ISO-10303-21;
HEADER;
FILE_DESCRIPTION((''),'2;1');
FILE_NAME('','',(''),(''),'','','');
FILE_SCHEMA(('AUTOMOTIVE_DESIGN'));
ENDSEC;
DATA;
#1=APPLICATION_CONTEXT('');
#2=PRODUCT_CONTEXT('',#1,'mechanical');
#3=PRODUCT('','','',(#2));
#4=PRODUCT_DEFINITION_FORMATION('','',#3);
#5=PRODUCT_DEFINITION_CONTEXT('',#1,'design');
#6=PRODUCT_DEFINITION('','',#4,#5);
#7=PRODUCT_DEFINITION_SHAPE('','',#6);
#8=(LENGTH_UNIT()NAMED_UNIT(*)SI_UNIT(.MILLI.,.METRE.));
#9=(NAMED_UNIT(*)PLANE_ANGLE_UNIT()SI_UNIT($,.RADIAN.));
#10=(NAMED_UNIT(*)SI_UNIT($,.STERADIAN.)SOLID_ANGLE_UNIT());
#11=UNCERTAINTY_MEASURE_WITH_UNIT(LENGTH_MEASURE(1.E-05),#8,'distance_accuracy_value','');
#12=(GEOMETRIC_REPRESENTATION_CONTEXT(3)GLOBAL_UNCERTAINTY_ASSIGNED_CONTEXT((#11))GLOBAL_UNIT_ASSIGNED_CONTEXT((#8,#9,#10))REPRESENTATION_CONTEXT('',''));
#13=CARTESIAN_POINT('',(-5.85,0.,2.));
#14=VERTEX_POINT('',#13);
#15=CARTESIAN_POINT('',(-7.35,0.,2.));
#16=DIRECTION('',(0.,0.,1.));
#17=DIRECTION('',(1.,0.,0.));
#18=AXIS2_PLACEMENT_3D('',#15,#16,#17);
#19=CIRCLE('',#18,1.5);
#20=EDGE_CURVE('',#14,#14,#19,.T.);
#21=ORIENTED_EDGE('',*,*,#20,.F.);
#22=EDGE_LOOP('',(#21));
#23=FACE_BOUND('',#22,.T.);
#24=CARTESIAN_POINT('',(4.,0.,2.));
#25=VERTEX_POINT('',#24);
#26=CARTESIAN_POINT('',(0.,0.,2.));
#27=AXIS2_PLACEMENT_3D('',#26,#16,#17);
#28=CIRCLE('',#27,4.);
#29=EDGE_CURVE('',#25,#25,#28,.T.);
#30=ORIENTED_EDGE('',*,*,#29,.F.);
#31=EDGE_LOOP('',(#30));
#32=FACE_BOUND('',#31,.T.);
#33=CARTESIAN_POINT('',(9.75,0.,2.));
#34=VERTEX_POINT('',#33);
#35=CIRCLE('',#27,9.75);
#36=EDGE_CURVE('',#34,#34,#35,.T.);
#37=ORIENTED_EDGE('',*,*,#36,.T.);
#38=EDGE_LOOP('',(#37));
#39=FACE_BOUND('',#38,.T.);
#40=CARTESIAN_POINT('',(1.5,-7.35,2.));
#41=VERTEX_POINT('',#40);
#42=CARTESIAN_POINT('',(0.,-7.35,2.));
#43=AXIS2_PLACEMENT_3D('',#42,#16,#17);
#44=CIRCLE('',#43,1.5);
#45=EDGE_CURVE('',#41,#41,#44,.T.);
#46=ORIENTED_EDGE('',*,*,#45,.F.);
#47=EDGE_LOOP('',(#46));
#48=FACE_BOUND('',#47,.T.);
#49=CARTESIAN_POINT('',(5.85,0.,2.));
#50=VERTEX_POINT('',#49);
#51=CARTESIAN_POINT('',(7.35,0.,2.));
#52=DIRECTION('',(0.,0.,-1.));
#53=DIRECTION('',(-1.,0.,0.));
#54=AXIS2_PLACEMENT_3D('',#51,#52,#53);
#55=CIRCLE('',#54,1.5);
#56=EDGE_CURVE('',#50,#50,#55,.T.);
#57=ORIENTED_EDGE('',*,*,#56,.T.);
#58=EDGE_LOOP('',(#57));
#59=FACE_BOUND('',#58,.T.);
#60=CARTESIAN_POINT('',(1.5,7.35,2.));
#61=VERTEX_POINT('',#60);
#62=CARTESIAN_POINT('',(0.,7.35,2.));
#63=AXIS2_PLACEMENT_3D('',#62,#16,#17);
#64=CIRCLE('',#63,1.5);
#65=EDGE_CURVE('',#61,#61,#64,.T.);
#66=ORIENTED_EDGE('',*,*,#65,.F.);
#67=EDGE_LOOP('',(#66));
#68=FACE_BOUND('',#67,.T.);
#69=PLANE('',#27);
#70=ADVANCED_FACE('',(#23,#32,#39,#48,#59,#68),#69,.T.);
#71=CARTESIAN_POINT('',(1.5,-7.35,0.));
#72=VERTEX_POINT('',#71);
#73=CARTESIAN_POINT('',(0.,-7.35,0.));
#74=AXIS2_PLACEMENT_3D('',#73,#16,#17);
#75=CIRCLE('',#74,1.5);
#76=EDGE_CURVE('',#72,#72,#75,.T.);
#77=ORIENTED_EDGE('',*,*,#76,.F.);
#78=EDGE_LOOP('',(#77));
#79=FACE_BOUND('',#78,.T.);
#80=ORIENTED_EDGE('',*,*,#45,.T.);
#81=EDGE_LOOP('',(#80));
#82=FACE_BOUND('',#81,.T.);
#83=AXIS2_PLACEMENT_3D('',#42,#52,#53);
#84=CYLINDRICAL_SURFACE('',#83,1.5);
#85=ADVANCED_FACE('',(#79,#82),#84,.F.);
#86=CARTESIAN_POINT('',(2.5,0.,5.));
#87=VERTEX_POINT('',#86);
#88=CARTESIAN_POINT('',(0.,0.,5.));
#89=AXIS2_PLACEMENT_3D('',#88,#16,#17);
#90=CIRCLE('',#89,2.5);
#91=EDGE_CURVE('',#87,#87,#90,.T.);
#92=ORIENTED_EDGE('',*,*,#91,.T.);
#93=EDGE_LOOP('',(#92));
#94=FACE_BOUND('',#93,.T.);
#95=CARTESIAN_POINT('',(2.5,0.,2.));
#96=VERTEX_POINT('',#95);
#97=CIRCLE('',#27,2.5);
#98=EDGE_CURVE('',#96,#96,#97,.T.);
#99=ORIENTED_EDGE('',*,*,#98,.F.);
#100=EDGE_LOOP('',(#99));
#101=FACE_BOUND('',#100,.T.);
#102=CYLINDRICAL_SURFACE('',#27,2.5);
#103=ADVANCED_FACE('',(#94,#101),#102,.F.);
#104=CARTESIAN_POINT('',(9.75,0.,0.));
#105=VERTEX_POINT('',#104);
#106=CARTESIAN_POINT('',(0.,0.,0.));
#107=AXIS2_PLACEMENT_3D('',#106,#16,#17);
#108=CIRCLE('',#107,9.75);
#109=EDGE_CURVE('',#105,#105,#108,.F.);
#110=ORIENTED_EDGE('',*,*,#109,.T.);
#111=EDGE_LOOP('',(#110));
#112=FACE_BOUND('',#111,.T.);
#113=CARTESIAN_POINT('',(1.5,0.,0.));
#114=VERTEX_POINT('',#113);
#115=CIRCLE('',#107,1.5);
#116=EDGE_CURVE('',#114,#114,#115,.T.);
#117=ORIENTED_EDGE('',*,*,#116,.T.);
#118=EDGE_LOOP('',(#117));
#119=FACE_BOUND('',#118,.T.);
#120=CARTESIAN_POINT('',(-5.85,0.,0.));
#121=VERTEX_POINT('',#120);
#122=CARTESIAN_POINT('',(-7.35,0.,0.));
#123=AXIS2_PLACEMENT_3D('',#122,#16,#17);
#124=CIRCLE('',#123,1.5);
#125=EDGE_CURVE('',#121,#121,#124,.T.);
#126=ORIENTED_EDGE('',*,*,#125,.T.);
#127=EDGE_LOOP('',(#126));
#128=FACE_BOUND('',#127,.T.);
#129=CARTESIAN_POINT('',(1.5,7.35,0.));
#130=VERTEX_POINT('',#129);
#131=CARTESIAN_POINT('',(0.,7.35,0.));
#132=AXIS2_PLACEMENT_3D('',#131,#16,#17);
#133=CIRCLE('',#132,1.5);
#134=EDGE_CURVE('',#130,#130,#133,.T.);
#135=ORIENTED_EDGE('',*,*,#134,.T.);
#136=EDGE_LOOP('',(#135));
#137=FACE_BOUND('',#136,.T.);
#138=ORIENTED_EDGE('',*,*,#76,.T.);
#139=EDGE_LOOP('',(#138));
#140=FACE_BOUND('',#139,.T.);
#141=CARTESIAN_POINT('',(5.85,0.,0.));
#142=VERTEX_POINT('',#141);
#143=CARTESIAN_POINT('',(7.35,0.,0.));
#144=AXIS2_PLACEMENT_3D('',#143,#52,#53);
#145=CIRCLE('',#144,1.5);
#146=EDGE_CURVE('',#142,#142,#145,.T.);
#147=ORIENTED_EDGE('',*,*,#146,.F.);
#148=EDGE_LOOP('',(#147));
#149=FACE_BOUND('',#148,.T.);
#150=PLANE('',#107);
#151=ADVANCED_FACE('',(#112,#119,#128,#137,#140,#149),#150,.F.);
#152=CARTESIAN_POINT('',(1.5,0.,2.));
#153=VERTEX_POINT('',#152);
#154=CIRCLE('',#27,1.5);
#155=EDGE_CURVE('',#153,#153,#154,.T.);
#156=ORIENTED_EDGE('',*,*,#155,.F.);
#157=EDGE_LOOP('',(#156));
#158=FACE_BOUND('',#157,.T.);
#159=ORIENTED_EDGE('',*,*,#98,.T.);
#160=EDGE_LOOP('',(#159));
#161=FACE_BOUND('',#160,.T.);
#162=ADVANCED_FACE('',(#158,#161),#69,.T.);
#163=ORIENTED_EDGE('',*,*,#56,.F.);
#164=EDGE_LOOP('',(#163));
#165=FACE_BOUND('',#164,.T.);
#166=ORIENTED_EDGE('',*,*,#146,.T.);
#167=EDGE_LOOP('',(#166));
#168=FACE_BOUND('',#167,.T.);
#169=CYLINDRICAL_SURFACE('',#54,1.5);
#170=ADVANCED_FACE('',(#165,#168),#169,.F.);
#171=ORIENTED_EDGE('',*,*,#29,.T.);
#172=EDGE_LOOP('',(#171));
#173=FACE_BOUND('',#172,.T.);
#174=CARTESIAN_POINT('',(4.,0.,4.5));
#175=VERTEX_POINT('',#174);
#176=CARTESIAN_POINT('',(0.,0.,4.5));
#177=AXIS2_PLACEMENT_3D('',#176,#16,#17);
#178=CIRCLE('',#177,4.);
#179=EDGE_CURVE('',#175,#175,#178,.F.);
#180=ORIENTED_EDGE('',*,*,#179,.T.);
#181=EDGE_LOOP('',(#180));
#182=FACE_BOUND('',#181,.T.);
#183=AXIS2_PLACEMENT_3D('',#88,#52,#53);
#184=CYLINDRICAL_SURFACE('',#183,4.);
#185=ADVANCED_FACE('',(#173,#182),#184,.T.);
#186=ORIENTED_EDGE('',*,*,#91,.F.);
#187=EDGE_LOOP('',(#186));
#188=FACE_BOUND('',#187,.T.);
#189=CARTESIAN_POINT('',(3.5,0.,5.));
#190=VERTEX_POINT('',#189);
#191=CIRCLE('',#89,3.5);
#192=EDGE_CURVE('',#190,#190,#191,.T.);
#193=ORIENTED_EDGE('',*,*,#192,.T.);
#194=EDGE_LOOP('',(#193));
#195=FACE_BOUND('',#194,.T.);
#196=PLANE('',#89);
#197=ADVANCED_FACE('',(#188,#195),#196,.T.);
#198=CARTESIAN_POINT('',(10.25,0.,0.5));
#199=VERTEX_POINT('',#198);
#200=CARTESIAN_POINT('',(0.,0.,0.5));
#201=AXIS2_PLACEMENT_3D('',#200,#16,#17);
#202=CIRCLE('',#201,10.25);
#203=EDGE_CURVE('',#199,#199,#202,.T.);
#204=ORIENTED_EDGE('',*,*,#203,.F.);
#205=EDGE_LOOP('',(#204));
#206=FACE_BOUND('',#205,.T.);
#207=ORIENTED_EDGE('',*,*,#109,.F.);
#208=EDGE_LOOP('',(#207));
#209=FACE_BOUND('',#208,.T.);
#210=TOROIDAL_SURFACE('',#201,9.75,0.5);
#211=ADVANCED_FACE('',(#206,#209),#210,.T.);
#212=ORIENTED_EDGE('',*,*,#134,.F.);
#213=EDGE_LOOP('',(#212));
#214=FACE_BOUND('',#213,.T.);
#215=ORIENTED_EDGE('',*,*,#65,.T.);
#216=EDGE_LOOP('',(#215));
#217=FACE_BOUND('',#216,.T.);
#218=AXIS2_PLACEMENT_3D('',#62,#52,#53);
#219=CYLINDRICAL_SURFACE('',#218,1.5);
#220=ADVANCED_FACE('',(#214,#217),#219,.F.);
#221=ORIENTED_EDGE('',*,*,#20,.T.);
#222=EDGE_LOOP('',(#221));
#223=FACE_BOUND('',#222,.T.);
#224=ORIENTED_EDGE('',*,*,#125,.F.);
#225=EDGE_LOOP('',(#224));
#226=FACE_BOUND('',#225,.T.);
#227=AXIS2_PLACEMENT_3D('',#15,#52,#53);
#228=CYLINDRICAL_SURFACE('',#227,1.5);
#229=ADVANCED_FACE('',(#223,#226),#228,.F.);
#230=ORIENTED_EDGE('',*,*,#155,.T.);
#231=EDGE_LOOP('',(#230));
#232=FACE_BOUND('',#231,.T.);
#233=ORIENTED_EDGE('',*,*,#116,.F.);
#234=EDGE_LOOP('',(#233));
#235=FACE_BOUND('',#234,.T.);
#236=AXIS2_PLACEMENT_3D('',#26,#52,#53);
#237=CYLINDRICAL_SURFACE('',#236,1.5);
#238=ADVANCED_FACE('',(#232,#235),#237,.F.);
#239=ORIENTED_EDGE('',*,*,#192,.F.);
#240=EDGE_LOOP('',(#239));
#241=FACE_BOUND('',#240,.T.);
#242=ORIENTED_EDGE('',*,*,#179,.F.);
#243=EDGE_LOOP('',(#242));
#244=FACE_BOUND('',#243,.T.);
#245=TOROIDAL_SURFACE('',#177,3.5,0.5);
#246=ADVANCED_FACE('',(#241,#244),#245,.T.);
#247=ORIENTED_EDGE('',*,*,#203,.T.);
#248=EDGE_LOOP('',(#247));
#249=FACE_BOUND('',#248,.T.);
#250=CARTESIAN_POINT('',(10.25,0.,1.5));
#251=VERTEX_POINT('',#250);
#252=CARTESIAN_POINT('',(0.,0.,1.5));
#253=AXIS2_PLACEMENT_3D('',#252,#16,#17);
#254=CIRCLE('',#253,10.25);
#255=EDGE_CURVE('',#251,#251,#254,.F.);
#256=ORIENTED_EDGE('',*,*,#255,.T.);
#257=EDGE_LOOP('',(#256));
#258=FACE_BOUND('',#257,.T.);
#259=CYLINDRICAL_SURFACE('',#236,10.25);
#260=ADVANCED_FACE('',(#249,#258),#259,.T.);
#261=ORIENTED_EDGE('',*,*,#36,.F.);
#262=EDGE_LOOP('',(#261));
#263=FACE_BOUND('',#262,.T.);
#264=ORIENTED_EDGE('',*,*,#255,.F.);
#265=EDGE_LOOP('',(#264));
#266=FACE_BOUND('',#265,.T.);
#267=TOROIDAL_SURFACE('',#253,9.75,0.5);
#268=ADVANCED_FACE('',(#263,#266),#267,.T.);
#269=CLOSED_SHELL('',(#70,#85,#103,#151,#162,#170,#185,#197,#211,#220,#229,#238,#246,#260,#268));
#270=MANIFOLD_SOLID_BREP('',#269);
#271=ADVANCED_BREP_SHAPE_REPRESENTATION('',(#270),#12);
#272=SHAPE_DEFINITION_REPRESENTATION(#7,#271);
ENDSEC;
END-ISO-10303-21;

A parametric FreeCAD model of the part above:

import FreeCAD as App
import Part
import Sketcher


def edges_at(feature, points):
    """Names of the edges that pass closest to the given points."""
    edges = feature.Shape.Edges
    near = lambda p: min(range(len(edges)), key=lambda i: edges[i].distToShape(Part.Vertex(*p))[0])
    return sorted({f"Edge{near(p) + 1}" for p in points})

doc = App.newDocument("Part")
body = doc.addObject("PartDesign::Body", "Body")

# Sketch on XY plane
sketch1 = body.newObject("Sketcher::SketchObject", "Sketch")
sketch1.AttachmentSupport = (doc.getObject("XY_Plane"), [""])
sketch1.MapMode = "FlatFace"
sketch1.addGeometry([
    Part.Circle(App.Vector(0, 0, 0), App.Vector(0, 0, 1), 10.25),  # 0
    Part.Circle(App.Vector(0, -7.35, 0), App.Vector(0, 0, 1), 1.5),  # 1
    Part.Circle(App.Vector(-7.35, 0, 0), App.Vector(0, 0, 1), 1.5),  # 2
    Part.Circle(App.Vector(0, 0, 0), App.Vector(0, 0, 1), 1.5),  # 3
    Part.Circle(App.Vector(0, 7.35, 0), App.Vector(0, 0, 1), 1.5),  # 4
    Part.Circle(App.Vector(7.35, 0, 0), App.Vector(0, 0, 1), 1.5),  # 5
], False)
sketch1.addConstraint([
    Sketcher.Constraint("Coincident", 0, 3, -1, 1),
    Sketcher.Constraint("Coincident", 3, 3, -1, 1),
    Sketcher.Constraint("Equal", 1, 2),
    Sketcher.Constraint("Equal", 2, 3),
    Sketcher.Constraint("Equal", 3, 4),
    Sketcher.Constraint("Equal", 4, 5),
    Sketcher.Constraint("Symmetric", 1, 3, 4, 3, -1, 1),
    Sketcher.Constraint("Symmetric", 2, 3, 5, 3, -1, 1),
    Sketcher.Constraint("PointOnObject", 1, 3, -2),
    Sketcher.Constraint("PointOnObject", 2, 3, -1),
    Sketcher.Constraint("Diameter", 1, 3.0),
    Sketcher.Constraint("Diameter", 0, 20.5),
    Sketcher.Constraint("DistanceY", 1, 3, 4, 3, 14.7),
    Sketcher.Constraint("DistanceX", 2, 3, 5, 3, 14.7),
])
pad1 = body.newObject("PartDesign::Pad", "Pad")
pad1.Profile = sketch1
pad1.Length = 2

# Sketch on XY plane
sketch2 = body.newObject("Sketcher::SketchObject", "Sketch001")
sketch2.AttachmentSupport = (doc.getObject("XY_Plane"), [""])
sketch2.MapMode = "FlatFace"
sketch2.AttachmentOffset = App.Placement(App.Vector(0, 0, 2), App.Rotation())
sketch2.addGeometry(Part.Circle(App.Vector(0, 0, 0), App.Vector(0, 0, 1), 4), False)
sketch2.addConstraint([
    Sketcher.Constraint("Coincident", 0, 3, -1, 1),
    Sketcher.Constraint("Diameter", 0, 8.0),
])
pad2 = body.newObject("PartDesign::Pad", "Pad001")
pad2.Profile = sketch2
pad2.Length = 3

# Sketch on XY plane
sketch3 = body.newObject("Sketcher::SketchObject", "Sketch002")
sketch3.AttachmentSupport = (doc.getObject("XY_Plane"), [""])
sketch3.MapMode = "FlatFace"
sketch3.AttachmentOffset = App.Placement(App.Vector(0, 0, 5), App.Rotation())
sketch3.addGeometry(Part.Circle(App.Vector(0, 0, 0), App.Vector(0, 0, 1), 2.5), False)
sketch3.addConstraint([
    Sketcher.Constraint("Coincident", 0, 3, -1, 1),
    Sketcher.Constraint("Diameter", 0, 5.0),
])
pocket1 = body.newObject("PartDesign::Pocket", "Pocket")
pocket1.Profile = sketch3
pocket1.Length = 3
doc.recompute()

fillet = body.newObject("PartDesign::Fillet", "Fillet")
fillet.Base = (pocket1, edges_at(pocket1, [(-10.25, 0, 2)]))
fillet.Radius = 0.5
doc.recompute()

fillet2 = body.newObject("PartDesign::Fillet", "Fillet001")
fillet2.Base = (fillet, edges_at(fillet, [(-10.25, 0, 0)]))
fillet2.Radius = 0.5
doc.recompute()

fillet3 = body.newObject("PartDesign::Fillet", "Fillet002")
fillet3.Base = (fillet2, edges_at(fillet2, [(-4, 0, 5)]))
fillet3.Radius = 0.5

doc.recompute()
